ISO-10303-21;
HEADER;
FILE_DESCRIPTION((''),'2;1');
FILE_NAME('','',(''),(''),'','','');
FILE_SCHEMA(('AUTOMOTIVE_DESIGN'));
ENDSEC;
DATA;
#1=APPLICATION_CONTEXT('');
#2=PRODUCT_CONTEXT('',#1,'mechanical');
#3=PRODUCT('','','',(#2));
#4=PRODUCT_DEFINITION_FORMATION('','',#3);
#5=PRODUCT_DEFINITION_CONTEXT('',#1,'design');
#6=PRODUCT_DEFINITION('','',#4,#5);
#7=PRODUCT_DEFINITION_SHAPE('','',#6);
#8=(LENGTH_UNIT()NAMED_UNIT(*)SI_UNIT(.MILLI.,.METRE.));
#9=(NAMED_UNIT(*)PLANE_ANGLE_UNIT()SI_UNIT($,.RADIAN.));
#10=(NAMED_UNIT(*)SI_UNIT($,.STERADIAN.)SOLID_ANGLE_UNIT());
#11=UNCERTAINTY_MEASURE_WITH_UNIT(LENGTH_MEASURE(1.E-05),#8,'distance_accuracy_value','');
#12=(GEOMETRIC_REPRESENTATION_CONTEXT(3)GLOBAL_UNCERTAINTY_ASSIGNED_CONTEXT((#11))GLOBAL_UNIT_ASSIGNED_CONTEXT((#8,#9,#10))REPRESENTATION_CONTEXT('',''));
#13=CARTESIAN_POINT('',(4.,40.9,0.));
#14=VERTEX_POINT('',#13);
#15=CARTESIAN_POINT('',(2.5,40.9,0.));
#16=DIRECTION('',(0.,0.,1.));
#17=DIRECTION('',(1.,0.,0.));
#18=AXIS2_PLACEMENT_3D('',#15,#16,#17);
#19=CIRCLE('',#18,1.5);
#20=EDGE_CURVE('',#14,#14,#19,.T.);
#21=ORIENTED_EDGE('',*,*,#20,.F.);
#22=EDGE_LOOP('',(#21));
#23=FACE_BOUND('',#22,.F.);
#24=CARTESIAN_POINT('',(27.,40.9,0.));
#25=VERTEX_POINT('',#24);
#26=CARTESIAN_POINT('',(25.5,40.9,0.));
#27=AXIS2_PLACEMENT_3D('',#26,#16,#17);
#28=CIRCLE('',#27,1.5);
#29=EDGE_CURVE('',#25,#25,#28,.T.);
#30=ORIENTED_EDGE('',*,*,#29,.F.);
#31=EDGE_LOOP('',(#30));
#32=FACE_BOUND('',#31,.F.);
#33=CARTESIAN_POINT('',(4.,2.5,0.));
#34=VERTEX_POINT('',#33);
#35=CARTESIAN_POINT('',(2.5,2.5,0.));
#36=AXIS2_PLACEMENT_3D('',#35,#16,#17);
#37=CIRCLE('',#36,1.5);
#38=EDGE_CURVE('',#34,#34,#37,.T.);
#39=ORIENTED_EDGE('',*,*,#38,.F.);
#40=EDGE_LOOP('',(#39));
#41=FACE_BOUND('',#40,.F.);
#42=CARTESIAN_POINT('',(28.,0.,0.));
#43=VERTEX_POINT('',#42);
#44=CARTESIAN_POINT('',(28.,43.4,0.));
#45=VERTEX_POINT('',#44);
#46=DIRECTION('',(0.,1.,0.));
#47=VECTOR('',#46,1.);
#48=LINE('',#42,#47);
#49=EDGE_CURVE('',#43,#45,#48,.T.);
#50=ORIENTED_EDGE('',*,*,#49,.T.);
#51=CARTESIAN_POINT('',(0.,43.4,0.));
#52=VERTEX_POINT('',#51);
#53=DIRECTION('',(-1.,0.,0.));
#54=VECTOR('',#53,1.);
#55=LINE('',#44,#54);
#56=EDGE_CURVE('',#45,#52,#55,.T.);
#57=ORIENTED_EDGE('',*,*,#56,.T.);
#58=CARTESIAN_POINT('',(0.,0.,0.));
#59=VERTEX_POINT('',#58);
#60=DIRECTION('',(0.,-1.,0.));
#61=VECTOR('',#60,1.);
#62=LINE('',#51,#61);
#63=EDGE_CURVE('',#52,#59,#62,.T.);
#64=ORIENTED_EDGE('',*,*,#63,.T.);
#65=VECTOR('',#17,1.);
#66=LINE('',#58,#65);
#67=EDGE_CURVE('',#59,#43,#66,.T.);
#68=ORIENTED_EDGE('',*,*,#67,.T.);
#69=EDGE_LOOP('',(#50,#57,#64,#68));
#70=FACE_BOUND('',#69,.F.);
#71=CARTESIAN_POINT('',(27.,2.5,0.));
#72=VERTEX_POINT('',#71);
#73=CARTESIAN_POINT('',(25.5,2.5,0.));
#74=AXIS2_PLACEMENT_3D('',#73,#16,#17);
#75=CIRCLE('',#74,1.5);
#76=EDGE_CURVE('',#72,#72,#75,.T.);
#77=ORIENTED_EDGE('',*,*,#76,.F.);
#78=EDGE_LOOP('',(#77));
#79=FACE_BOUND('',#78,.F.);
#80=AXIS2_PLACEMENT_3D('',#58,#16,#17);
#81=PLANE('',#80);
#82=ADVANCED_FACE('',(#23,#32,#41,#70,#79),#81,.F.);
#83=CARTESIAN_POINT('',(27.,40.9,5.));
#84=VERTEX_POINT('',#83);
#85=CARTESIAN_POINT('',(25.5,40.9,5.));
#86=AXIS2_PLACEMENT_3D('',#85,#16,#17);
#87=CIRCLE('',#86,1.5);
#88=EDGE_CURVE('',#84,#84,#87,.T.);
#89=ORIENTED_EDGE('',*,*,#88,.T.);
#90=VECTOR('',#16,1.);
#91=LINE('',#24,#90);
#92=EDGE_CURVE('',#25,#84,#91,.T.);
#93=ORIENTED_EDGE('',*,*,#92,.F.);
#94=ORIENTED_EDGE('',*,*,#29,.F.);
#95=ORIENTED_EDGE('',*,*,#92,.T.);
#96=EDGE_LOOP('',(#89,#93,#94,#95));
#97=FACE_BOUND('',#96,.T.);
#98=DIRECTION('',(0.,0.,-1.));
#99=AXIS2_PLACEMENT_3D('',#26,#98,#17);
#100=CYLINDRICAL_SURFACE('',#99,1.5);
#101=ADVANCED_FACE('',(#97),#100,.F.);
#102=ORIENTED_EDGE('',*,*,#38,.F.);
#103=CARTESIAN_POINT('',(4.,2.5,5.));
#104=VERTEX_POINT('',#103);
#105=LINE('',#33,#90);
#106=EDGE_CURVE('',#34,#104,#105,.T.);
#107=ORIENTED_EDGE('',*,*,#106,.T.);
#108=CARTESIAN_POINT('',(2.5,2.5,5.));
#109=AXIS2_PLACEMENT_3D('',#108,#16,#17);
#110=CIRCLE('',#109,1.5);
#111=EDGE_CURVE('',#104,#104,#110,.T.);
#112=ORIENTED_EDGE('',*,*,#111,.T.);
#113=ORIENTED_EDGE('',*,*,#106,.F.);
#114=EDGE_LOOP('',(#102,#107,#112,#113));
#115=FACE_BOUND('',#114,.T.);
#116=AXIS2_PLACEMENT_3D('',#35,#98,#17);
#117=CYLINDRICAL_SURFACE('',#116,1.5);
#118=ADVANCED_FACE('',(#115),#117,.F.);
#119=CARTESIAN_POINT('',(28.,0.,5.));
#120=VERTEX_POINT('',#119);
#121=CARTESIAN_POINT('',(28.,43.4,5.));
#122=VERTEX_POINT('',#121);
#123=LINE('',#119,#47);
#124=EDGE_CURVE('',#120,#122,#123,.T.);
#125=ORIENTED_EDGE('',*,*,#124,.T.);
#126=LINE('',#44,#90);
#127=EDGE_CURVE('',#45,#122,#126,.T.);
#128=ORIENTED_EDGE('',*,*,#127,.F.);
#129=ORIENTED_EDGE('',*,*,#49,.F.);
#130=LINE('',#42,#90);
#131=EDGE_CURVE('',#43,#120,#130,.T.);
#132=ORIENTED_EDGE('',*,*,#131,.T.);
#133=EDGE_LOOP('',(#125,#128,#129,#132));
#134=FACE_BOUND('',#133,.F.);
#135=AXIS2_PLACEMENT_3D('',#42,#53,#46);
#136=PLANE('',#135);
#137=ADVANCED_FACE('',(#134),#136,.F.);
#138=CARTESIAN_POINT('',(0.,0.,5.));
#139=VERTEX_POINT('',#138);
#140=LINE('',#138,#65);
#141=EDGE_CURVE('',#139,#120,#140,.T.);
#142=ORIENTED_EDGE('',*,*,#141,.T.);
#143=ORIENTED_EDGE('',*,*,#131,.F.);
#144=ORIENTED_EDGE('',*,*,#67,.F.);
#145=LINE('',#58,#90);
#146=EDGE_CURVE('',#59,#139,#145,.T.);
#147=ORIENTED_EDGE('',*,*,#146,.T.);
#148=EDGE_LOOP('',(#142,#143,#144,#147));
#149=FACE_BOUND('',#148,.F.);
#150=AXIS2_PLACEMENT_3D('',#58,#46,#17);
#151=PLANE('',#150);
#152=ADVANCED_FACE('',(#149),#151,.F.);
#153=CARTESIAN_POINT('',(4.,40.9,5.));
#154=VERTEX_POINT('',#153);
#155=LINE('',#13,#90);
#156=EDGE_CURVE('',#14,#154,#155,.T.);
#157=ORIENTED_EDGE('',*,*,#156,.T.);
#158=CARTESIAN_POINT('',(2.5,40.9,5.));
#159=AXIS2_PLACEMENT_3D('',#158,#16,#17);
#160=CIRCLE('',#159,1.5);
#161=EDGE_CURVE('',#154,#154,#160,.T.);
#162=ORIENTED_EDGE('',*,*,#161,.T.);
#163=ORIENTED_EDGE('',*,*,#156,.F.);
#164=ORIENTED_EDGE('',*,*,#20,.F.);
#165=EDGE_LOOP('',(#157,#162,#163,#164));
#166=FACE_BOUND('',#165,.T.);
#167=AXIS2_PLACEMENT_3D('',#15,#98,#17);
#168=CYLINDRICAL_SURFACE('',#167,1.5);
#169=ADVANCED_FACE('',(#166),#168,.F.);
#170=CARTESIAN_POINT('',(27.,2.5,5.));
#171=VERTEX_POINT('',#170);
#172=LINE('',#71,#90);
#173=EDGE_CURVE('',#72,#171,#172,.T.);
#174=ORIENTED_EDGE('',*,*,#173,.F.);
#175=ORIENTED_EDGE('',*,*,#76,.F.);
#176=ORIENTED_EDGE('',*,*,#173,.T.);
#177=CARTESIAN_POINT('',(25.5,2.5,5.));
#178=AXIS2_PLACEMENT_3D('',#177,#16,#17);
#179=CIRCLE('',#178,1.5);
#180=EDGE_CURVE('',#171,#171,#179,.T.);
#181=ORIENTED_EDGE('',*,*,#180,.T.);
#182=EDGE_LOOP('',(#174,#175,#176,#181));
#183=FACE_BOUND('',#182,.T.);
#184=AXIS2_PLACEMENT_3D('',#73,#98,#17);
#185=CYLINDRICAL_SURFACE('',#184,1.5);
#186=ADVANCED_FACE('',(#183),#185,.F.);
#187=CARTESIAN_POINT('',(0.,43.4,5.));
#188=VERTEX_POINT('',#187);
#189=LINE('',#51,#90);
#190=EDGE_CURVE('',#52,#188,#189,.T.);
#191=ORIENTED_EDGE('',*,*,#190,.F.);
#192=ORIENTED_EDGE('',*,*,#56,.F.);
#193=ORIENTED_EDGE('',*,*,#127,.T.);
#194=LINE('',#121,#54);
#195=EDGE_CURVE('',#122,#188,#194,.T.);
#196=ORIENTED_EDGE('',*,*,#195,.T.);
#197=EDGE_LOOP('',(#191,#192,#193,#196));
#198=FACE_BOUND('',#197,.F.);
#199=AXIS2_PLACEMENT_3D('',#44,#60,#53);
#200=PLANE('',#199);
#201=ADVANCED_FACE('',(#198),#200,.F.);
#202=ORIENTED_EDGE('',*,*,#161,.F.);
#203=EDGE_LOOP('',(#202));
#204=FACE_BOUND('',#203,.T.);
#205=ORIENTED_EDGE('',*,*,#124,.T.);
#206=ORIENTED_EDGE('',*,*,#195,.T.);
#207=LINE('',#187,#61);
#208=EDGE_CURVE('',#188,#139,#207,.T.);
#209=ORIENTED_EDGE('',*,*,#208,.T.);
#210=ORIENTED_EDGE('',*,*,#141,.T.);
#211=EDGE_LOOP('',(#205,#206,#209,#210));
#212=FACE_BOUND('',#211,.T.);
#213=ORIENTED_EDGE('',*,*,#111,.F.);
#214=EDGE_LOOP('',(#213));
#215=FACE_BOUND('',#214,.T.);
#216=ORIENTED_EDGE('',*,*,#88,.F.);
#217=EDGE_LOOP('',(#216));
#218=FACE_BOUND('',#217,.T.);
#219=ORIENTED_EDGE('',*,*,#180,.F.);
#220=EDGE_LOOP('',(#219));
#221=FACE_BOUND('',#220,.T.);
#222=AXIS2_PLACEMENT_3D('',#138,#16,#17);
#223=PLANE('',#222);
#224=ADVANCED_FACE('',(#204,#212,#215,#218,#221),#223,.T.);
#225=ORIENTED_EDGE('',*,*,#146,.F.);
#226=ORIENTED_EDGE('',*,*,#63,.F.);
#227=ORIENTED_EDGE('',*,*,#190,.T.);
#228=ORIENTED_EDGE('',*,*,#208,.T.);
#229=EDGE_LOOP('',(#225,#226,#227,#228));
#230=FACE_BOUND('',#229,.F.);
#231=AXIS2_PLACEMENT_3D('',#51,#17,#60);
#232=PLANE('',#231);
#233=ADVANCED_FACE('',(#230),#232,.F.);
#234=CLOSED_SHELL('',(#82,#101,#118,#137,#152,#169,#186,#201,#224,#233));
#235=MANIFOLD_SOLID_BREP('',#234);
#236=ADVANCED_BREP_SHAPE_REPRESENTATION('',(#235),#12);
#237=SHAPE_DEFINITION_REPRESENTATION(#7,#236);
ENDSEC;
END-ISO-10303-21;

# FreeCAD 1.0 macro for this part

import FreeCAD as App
import Part
import Sketcher

V = App.Vector
Q = App.Units.Quantity


def add_polygon(sketch, points):
    """Adds a closed chain of lines whose ends are joined by coincident constraints."""
    first, n = sketch.GeometryCount, len(points)
    for a, b in zip(points, points[1:] + points[:1]):
        sketch.addGeometry(Part.LineSegment(App.Vector(*a, 0), App.Vector(*b, 0)), False)
    for i in range(n):
        sketch.addConstraint(Sketcher.Constraint("Coincident", first + i, 2, first + (i + 1) % n, 1))

doc = App.newDocument("Part")
params = doc.addObject("Spreadsheet::Sheet", "Params")
for row, (alias, value) in enumerate([
    ("sketch1_diameter", "3 mm"),
    ("sketch1_width", "28 mm"),
    ("sketch1_height", "43.4 mm"),
    ("pad1_length", "5 mm"),
], start=1):
    params.set(f"A{row}", alias)
    params.set(f"B{row}", "=" + value)
    params.setAlias(f"B{row}", alias)

body = doc.addObject("PartDesign::Body", "Body")

# Sketch on XY plane
sketch1 = body.newObject("Sketcher::SketchObject", "Sketch")
sketch1.AttachmentSupport = (doc.getObject("XY_Plane"), [""])
sketch1.MapMode = "FlatFace"
add_polygon(sketch1, [(0, 43.4), (0, 0), (28, 0), (28, 43.4)])  # lines 0-3
sketch1.addGeometry(Part.Circle(V(2.5, 2.5, 0), V(0, 0, 1), 1.5), False)  # 4
sketch1.addGeometry(Part.Circle(V(25.5, 2.5, 0), V(0, 0, 1), 1.5), False)  # 5
sketch1.addGeometry(Part.Circle(V(2.5, 40.9, 0), V(0, 0, 1), 1.5), False)  # 6
sketch1.addGeometry(Part.Circle(V(25.5, 40.9, 0), V(0, 0, 1), 1.5), False)  # 7
sketch1.addConstraint(Sketcher.Constraint("Vertical", 0))
sketch1.addConstraint(Sketcher.Constraint("Horizontal", 1))
sketch1.addConstraint(Sketcher.Constraint("Vertical", 2))
sketch1.addConstraint(Sketcher.Constraint("Horizontal", 3))
sketch1.addConstraint(Sketcher.Constraint("Coincident", 0, 2, -1, 1))
sketch1.addConstraint(Sketcher.Constraint("Equal", 4, 5))
sketch1.addConstraint(Sketcher.Constraint("Equal", 5, 6))
sketch1.addConstraint(Sketcher.Constraint("Equal", 6, 7))
sketch1.addConstraint(Sketcher.Constraint("Horizontal", 4, 3, 5, 3))
sketch1.addConstraint(Sketcher.Constraint("Horizontal", 6, 3, 7, 3))
sketch1.addConstraint(Sketcher.Constraint("Vertical", 4, 3, 6, 3))
sketch1.addConstraint(Sketcher.Constraint("Vertical", 5, 3, 7, 3))
sketch1.addConstraint(Sketcher.Constraint("Diameter", 4, Q("3 mm")))
sketch1.addConstraint(Sketcher.Constraint("DistanceX", 1, 1, 1, 2, Q("28 mm")))
sketch1.addConstraint(Sketcher.Constraint("DistanceY", 0, 2, 0, 1, Q("43.4 mm")))
sketch1.addConstraint(Sketcher.Constraint("DistanceX", -1, 1, 4, 3, Q("2.5 mm")))
sketch1.addConstraint(Sketcher.Constraint("DistanceY", -1, 1, 4, 3, Q("2.5 mm")))
sketch1.addConstraint(Sketcher.Constraint("DistanceX", 5, 3, 1, 2, Q("2.5 mm")))
sketch1.addConstraint(Sketcher.Constraint("DistanceY", 7, 3, 2, 2, Q("2.5 mm")))
sketch1.setExpression("Constraints[16]", "Params.sketch1_diameter")
sketch1.setExpression("Constraints[17]", "Params.sketch1_width")
sketch1.setExpression("Constraints[18]", "Params.sketch1_height")
pad1 = body.newObject("PartDesign::Pad", "Pad")
pad1.Profile = sketch1
pad1.setExpression("Length", "Params.pad1_length")

doc.recompute()
